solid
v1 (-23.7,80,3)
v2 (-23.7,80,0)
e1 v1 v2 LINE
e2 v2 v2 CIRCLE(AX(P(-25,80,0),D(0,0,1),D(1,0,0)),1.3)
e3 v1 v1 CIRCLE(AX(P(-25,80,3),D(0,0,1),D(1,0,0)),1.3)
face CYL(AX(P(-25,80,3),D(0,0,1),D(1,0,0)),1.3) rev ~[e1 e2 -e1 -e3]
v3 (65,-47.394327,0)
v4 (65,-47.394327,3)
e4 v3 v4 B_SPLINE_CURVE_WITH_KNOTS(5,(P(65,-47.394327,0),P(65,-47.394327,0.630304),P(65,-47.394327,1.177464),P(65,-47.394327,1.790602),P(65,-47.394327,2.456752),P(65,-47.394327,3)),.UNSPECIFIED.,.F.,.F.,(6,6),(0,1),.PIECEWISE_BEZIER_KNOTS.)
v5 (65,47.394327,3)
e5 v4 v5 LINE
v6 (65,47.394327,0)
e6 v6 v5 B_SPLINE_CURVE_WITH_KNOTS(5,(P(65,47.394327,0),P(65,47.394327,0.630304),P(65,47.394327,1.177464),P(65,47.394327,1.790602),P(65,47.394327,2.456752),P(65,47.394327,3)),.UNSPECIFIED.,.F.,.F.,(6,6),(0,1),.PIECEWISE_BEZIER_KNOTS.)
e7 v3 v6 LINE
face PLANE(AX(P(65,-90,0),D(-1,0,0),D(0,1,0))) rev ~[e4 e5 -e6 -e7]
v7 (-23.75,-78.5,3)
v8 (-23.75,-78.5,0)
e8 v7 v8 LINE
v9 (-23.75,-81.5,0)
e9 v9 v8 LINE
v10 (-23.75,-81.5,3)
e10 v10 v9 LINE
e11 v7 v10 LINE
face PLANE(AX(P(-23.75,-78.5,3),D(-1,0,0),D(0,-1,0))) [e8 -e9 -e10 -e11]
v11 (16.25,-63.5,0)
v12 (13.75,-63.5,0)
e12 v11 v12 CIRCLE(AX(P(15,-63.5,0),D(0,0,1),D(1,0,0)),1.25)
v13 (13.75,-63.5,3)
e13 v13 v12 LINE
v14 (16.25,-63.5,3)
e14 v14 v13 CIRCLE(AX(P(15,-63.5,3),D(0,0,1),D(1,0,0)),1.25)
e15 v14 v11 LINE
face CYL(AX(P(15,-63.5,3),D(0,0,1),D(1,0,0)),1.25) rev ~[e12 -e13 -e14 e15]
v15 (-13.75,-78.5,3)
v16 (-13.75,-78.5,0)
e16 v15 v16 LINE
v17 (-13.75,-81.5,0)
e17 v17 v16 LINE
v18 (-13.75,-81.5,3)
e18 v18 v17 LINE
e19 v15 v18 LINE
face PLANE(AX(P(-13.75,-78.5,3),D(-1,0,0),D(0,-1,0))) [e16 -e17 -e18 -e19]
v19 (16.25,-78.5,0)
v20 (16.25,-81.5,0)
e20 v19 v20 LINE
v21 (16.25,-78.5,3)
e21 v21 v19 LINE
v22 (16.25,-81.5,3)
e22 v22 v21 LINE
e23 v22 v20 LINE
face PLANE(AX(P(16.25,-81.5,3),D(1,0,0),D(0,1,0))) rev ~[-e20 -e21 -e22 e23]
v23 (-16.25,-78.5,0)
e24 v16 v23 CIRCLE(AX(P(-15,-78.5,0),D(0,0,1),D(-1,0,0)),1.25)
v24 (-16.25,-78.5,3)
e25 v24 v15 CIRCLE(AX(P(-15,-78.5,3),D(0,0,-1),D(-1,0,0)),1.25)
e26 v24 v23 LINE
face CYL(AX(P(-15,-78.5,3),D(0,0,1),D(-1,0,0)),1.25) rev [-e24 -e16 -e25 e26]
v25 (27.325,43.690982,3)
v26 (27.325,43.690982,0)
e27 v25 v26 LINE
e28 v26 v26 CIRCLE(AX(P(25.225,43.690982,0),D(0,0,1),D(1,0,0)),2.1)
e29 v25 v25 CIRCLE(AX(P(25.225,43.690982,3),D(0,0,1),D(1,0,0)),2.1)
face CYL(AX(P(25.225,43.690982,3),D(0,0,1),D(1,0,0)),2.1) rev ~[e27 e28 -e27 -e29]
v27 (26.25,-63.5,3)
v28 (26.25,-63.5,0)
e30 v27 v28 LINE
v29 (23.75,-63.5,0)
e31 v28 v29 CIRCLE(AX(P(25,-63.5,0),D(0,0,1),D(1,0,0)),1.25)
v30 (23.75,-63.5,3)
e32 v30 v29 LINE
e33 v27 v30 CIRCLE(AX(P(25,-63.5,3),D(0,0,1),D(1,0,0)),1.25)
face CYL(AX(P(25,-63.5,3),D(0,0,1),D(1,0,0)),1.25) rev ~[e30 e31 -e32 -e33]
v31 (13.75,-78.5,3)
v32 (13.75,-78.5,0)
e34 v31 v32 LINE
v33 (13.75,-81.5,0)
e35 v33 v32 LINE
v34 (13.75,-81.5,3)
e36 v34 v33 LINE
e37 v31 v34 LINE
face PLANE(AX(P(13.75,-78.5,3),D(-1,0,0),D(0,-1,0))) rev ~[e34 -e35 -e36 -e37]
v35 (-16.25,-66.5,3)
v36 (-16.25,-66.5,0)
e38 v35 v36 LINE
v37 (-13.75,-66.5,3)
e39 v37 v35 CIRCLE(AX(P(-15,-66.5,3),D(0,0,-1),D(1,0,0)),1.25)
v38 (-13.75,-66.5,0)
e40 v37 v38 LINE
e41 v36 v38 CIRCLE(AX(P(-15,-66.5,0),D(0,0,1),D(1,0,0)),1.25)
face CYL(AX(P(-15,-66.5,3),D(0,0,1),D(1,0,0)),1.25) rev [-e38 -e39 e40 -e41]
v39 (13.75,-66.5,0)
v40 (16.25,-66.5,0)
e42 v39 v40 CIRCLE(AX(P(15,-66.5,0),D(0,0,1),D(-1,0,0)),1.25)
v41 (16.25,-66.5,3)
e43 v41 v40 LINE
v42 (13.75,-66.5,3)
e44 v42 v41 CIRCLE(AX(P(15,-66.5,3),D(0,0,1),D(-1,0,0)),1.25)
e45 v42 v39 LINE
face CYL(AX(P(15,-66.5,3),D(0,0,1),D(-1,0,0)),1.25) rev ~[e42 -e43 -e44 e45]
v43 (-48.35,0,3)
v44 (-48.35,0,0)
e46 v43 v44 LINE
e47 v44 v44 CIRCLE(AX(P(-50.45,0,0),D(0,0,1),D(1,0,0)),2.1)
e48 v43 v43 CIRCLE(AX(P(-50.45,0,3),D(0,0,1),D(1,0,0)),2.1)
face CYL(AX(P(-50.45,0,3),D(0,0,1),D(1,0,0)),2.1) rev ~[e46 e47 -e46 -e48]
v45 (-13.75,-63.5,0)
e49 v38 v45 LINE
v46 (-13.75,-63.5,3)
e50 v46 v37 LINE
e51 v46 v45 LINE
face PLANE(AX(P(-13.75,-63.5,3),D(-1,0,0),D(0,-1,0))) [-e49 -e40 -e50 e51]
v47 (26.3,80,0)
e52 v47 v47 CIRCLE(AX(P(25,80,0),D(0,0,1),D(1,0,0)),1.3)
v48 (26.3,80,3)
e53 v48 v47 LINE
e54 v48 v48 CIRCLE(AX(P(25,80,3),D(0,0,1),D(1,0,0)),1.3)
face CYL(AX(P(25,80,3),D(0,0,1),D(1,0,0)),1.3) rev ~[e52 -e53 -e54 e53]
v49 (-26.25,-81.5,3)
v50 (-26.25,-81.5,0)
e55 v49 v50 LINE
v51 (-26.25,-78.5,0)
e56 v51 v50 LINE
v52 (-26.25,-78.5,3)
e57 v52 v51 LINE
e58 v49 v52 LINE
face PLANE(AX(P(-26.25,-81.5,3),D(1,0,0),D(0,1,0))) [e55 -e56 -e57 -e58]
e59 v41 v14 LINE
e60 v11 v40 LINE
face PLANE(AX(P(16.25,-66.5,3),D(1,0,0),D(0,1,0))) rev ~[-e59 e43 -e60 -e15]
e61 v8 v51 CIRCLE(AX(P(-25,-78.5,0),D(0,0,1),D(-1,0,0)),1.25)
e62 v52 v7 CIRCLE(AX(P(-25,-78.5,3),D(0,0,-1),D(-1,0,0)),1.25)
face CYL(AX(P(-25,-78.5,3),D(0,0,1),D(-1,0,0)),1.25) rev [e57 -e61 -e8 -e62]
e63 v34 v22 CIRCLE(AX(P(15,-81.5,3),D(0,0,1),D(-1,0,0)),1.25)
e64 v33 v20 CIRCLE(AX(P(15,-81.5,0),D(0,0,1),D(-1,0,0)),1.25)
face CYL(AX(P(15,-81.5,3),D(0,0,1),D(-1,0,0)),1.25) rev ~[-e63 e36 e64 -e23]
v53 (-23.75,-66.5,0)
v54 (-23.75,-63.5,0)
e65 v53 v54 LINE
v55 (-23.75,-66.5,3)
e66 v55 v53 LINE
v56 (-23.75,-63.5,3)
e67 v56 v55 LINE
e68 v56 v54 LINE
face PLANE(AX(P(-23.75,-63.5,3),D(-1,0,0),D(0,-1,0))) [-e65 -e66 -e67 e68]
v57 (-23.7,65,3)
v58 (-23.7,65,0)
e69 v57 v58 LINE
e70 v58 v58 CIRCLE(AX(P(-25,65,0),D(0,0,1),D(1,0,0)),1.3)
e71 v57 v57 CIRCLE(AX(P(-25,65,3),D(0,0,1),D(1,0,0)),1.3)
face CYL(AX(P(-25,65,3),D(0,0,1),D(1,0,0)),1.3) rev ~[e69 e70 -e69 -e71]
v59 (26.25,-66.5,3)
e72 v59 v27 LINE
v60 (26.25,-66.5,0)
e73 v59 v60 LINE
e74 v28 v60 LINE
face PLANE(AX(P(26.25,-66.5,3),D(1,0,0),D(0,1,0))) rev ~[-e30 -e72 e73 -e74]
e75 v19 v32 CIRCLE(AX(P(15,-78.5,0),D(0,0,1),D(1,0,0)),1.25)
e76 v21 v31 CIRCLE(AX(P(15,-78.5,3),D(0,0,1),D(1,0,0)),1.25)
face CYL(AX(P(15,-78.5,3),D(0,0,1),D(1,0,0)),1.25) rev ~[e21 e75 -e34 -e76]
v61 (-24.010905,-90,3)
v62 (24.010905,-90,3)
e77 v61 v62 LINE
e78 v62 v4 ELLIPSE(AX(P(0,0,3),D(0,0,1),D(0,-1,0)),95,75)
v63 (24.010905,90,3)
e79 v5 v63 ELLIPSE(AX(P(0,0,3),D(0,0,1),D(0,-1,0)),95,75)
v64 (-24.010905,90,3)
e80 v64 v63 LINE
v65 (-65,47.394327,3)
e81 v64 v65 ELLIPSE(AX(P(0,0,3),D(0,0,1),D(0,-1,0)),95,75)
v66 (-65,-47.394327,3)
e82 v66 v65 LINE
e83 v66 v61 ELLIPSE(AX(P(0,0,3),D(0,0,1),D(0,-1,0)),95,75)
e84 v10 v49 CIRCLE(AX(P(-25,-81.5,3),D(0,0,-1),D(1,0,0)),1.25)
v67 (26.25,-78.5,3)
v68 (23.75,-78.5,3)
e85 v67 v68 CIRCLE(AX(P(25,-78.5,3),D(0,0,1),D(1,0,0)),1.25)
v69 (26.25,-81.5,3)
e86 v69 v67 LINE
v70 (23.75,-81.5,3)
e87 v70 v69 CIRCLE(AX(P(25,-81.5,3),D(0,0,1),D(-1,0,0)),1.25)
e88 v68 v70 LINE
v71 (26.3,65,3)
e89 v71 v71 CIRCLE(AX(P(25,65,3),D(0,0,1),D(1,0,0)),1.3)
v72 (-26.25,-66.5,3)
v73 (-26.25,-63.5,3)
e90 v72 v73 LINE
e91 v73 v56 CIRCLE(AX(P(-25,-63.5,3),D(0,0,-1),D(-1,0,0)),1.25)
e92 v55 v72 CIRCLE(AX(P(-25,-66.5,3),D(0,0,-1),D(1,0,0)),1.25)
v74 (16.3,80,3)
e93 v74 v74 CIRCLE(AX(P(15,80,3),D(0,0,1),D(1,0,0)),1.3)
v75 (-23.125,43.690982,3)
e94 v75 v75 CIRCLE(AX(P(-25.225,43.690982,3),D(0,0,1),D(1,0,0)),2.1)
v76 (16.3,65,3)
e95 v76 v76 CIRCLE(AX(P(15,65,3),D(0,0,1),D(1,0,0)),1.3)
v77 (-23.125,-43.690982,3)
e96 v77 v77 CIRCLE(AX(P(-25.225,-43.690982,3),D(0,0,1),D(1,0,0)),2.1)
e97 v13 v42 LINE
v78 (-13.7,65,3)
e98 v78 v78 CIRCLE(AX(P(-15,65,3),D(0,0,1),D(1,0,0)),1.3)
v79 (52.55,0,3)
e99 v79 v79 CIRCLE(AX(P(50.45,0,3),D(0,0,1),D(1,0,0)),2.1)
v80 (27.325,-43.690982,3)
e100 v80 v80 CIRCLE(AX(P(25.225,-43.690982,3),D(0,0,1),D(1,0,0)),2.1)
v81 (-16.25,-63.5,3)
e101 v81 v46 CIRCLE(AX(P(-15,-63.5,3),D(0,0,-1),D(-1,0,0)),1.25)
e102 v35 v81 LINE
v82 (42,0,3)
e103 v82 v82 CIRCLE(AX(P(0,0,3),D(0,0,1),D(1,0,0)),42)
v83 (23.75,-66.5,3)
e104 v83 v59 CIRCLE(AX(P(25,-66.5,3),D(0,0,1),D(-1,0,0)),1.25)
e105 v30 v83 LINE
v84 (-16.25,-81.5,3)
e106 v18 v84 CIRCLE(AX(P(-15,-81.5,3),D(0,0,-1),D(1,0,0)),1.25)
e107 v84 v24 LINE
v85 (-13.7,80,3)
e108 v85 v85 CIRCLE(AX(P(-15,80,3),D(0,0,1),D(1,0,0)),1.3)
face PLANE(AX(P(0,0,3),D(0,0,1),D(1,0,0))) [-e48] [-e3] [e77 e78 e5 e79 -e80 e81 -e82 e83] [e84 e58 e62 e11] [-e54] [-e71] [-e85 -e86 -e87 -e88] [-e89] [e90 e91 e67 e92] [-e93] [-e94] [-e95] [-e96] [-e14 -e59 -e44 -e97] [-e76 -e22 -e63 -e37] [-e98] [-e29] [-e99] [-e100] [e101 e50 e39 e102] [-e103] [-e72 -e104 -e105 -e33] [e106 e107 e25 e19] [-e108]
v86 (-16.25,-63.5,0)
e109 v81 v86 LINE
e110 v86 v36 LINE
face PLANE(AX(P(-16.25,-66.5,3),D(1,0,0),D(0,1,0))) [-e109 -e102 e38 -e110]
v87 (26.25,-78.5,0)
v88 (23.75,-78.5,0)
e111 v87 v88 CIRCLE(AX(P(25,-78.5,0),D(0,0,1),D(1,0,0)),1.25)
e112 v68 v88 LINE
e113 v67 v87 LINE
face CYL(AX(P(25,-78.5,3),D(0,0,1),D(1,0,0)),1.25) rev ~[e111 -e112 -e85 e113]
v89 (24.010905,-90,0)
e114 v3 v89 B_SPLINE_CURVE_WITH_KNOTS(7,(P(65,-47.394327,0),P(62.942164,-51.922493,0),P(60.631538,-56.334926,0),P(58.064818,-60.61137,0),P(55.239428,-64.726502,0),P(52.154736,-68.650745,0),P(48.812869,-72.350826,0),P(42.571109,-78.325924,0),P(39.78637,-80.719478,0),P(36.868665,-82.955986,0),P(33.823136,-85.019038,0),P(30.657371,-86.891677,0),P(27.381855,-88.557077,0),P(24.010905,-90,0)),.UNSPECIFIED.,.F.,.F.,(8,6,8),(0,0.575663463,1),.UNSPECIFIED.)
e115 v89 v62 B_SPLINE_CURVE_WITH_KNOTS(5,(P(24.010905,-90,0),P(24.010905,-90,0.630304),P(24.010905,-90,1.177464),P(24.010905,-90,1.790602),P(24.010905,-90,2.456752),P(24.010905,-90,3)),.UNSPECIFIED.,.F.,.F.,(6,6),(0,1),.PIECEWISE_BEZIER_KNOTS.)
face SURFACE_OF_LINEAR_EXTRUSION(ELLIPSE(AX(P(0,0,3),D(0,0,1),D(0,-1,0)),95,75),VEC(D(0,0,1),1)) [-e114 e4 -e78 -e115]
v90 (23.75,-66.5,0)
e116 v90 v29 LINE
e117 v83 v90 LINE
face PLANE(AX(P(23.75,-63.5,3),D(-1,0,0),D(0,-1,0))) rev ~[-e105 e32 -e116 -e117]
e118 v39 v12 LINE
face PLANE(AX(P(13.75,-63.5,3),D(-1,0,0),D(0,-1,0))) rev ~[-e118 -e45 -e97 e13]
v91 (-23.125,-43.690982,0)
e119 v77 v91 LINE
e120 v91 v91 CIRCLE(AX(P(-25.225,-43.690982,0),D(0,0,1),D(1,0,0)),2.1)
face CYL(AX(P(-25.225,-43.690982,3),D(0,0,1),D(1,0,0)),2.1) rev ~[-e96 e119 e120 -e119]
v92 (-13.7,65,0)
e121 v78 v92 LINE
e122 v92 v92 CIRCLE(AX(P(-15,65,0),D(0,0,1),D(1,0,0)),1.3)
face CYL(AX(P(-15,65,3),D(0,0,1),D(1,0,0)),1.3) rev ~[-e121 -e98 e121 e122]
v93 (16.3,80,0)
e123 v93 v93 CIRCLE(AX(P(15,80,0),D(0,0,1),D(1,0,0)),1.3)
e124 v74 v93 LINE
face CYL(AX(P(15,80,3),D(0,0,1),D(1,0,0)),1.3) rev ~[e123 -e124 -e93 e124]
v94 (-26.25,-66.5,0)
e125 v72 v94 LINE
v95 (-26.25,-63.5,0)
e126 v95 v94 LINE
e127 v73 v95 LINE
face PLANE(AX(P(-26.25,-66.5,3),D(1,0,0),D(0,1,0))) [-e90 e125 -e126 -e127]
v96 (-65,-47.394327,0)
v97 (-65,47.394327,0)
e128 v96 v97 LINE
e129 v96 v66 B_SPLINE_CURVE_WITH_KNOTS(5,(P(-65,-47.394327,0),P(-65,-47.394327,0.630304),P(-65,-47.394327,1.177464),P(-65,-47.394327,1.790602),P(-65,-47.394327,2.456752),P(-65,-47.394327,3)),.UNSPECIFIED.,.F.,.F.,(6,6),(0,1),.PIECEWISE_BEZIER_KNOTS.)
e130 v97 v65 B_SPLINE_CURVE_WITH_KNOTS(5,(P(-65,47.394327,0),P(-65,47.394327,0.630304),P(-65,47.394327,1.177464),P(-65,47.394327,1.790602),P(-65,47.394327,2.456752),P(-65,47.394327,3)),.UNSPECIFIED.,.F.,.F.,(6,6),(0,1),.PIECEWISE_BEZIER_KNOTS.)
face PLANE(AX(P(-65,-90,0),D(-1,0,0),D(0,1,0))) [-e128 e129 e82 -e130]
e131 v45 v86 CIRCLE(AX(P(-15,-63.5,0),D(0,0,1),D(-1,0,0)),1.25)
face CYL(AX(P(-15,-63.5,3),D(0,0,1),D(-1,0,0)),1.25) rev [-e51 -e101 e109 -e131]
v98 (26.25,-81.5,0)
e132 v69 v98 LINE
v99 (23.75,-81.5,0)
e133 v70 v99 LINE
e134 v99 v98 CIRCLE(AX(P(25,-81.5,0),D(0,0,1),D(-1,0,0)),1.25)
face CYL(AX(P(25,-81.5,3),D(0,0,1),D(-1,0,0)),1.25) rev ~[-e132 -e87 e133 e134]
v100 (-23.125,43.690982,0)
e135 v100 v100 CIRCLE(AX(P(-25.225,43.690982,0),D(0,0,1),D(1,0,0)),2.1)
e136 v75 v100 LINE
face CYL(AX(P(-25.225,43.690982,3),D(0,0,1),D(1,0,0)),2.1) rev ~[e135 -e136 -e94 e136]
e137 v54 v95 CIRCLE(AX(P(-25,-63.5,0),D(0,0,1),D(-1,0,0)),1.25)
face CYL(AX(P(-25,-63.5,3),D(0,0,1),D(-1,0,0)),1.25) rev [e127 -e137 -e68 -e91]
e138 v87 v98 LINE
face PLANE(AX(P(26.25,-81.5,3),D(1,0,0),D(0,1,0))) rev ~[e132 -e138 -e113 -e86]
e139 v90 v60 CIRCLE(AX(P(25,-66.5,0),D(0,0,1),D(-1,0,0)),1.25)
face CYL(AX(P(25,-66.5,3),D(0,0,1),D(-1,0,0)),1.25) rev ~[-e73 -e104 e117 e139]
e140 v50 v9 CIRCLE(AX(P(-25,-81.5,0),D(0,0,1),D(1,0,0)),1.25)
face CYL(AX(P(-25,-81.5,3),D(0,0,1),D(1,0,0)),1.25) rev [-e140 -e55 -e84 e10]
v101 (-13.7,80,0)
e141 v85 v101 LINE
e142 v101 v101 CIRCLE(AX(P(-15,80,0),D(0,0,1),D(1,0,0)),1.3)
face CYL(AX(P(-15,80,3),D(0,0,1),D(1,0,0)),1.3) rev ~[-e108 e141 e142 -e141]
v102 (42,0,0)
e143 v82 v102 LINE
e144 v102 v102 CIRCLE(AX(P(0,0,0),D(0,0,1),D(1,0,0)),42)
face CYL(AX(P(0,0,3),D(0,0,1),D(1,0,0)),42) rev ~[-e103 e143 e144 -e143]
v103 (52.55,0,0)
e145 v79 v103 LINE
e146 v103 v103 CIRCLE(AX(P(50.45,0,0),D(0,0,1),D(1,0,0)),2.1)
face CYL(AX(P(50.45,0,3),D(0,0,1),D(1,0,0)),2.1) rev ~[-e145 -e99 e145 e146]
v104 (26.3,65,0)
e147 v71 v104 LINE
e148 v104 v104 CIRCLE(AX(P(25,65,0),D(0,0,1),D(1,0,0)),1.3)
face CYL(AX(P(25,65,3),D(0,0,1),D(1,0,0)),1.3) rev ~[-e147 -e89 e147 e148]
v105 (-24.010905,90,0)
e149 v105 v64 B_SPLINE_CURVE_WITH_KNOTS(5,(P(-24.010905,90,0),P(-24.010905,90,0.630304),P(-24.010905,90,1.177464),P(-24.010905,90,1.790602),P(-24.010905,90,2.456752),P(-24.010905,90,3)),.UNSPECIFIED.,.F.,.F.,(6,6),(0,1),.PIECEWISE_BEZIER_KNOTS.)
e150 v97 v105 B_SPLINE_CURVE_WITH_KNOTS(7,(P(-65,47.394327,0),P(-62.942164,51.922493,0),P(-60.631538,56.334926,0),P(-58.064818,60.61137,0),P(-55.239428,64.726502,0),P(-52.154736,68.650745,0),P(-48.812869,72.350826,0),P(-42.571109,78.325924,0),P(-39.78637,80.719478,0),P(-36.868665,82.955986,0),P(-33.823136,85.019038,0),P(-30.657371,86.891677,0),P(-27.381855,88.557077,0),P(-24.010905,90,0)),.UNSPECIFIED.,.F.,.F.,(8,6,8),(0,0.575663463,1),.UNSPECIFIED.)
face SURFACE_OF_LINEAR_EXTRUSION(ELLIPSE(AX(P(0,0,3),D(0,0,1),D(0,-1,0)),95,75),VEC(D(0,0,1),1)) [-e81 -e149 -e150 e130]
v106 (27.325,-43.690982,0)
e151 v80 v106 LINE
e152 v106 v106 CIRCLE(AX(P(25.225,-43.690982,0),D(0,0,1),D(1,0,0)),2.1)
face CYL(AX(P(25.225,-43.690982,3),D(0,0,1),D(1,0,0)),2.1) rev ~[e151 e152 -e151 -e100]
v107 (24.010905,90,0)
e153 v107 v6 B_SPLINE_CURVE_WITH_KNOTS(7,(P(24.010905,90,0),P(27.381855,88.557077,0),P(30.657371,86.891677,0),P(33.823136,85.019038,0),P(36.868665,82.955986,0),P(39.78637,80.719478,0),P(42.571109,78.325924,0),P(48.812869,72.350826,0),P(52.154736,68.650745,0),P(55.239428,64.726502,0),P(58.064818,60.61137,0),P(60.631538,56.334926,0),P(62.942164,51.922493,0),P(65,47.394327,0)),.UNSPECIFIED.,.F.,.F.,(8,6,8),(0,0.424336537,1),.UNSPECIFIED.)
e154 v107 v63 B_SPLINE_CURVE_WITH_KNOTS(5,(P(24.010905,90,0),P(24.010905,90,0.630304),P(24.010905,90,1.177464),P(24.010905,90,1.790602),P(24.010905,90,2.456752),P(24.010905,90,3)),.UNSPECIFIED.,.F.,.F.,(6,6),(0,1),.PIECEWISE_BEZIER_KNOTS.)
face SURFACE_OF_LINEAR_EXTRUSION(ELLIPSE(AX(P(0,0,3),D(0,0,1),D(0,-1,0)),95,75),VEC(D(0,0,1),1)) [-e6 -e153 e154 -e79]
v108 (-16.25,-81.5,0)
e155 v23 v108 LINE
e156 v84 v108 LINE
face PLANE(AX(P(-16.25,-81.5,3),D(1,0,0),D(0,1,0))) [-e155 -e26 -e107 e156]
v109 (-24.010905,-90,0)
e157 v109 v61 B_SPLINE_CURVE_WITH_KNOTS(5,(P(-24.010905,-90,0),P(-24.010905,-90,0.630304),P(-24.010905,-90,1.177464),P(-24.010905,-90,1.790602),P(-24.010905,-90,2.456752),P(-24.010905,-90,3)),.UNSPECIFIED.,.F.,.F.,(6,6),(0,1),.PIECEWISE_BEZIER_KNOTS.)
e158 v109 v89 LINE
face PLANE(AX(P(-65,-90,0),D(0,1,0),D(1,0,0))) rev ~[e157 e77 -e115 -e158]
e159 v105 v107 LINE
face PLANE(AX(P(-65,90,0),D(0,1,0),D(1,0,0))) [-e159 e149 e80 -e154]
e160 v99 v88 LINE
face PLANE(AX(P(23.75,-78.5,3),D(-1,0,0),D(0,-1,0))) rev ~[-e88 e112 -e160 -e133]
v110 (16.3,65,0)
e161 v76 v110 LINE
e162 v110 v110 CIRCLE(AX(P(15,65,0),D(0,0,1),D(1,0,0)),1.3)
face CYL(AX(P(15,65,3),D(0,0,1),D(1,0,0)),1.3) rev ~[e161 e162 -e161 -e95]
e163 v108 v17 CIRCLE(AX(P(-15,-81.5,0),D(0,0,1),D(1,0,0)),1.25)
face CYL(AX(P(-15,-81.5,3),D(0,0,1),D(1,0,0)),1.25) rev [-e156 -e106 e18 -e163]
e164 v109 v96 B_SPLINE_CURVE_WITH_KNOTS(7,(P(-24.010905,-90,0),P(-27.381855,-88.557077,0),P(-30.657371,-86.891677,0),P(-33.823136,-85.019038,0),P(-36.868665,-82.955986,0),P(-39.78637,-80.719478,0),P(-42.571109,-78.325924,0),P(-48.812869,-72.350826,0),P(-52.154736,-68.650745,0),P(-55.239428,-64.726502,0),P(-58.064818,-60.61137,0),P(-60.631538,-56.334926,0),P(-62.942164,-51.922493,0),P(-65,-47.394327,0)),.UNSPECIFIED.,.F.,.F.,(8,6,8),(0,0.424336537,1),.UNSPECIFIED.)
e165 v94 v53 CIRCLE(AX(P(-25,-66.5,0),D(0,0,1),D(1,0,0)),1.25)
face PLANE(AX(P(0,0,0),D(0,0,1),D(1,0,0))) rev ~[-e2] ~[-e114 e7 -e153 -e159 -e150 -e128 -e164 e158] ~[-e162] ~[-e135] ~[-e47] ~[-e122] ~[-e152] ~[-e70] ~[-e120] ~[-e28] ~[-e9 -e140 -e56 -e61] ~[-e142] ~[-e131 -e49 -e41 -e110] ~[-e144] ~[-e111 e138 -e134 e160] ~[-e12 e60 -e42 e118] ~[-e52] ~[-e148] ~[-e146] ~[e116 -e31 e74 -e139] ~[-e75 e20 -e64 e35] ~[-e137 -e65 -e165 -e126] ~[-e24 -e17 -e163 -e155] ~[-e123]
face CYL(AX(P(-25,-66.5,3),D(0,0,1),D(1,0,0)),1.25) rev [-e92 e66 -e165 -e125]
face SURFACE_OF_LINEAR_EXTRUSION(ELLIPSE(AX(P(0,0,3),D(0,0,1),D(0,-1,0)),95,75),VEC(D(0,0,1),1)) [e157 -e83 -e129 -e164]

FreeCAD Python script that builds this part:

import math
import FreeCAD as App
import Part
import Sketcher
from FreeCAD import Vector


def add_polygon(sketch, points):
    """Adds a closed chain of lines whose ends are joined by coincident constraints."""
    first, n = sketch.GeometryCount, len(points)
    for a, b in zip(points, points[1:] + points[:1]):
        sketch.addGeometry(Part.LineSegment(App.Vector(*a, 0), App.Vector(*b, 0)), False)
    for i in range(n):
        sketch.addConstraint(Sketcher.Constraint("Coincident", first + i, 2, first + (i + 1) % n, 1))

doc = App.newDocument("Part")
body = doc.addObject("PartDesign::Body", "Body")

# Sketch on XY plane
sketch1 = body.newObject("Sketcher::SketchObject", "Sketch")
sketch1.AttachmentSupport = (doc.getObject("XY_Plane"), [""])
sketch1.MapMode = "FlatFace"
add_polygon(sketch1, [(-65, 90), (-65, -90), (65, -90), (65, 90)])  # lines 0-3
sketch1.addConstraint(Sketcher.Constraint("Vertical", 0))
sketch1.addConstraint(Sketcher.Constraint("Horizontal", 1))
sketch1.addConstraint(Sketcher.Constraint("Vertical", 2))
sketch1.addConstraint(Sketcher.Constraint("Horizontal", 3))
sketch1.addConstraint(Sketcher.Constraint("Symmetric", 0, 2, 2, 2, -1, 1))
sketch1.addConstraint(Sketcher.Constraint("DistanceX", 1, 1, 1, 2, 130.0))
sketch1.addConstraint(Sketcher.Constraint("DistanceY", 0, 2, 0, 1, 180.0))
pad1 = body.newObject("PartDesign::Pad", "Pad")
pad1.Profile = sketch1
pad1.Length = 3

# Sketch on XY plane
sketch2 = body.newObject("Sketcher::SketchObject", "Sketch001")
sketch2.AttachmentSupport = (doc.getObject("XY_Plane"), [""])
sketch2.MapMode = "FlatFace"
sketch2.AttachmentOffset = App.Placement(Vector(0, 0, 3), App.Rotation())
sketch2.addGeometry(Part.Circle(Vector(0, 0, 0), Vector(0, 0, 1), 42), False)
sketch2.addConstraint(Sketcher.Constraint("Coincident", 0, 3, -1, 1))
sketch2.addConstraint(Sketcher.Constraint("Diameter", 0, 84.0))
pocket1 = body.newObject("PartDesign::Pocket", "Pocket")
pocket1.Profile = sketch2
pocket1.Length = 10

# Sketch on XY plane
sketch3 = body.newObject("Sketcher::SketchObject", "Sketch002")
sketch3.AttachmentSupport = (doc.getObject("XY_Plane"), [""])
sketch3.MapMode = "FlatFace"
sketch3.AttachmentOffset = App.Placement(Vector(0, 0, 3), App.Rotation())
sketch3.addGeometry(Part.Circle(Vector(-50.45, 0, 0), Vector(0, 0, 1), 2.1), False)
sketch3.addGeometry(Part.Circle(Vector(-25.225, 43.690982, 0), Vector(0, 0, 1), 2.1), False)
sketch3.addGeometry(Part.Circle(Vector(25.225, 43.690982, 0), Vector(0, 0, 1), 2.1), False)
sketch3.addGeometry(Part.Circle(Vector(50.45, 0, 0), Vector(0, 0, 1), 2.1), False)
sketch3.addGeometry(Part.Circle(Vector(25.225, -43.690982, 0), Vector(0, 0, 1), 2.1), False)
sketch3.addGeometry(Part.Circle(Vector(-25.225, -43.690982, 0), Vector(0, 0, 1), 2.1), False)
sketch3.addConstraint(Sketcher.Constraint("Equal", 0, 1))
sketch3.addConstraint(Sketcher.Constraint("Equal", 1, 2))
sketch3.addConstraint(Sketcher.Constraint("Equal", 2, 3))
sketch3.addConstraint(Sketcher.Constraint("Equal", 3, 4))
sketch3.addConstraint(Sketcher.Constraint("Equal", 4, 5))
sketch3.addConstraint(Sketcher.Constraint("Symmetric", 0, 3, 3, 3, -1, 1))
sketch3.addConstraint(Sketcher.Constraint("Symmetric", 1, 3, 4, 3, -1, 1))
sketch3.addConstraint(Sketcher.Constraint("Symmetric", 2, 3, 5, 3, -1, 1))
sketch3.addConstraint(Sketcher.Constraint("Symmetric", 1, 3, 2, 3, -2))
sketch3.addConstraint(Sketcher.Constraint("PointOnObject", 0, 3, -1))
sketch3.addConstraint(Sketcher.Constraint("Diameter", 0, 4.2))
sketch3.addConstraint(Sketcher.Constraint("DistanceX", 0, 3, 3, 3, 100.9))
sketch3.addConstraint(Sketcher.Constraint("DistanceX", 1, 3, 2, 3, 50.45))
sketch3.addConstraint(Sketcher.Constraint("DistanceY", -1, 1, 1, 3, 43.690982))
pocket2 = body.newObject("PartDesign::Pocket", "Pocket001")
pocket2.Profile = sketch3
pocket2.Length = 10

# Sketch on XY plane
sketch4 = body.newObject("Sketcher::SketchObject", "Sketch003")
sketch4.AttachmentSupport = (doc.getObject("XY_Plane"), [""])
sketch4.MapMode = "FlatFace"
sketch4.AttachmentOffset = App.Placement(Vector(0, 0, 3), App.Rotation())
add_polygon(sketch4, [(-88.206, 113.206), (-88.206, -113.206), (88.206, -113.206), (88.206, 113.206)])  # lines 0-3
sketch4.addGeometry(Part.Ellipse(Vector(0, -95, 0), Vector(75, 0, 0), Vector(0, 0, 0)), False)  # 4
sketch4.addConstraint(Sketcher.Constraint("Block", 4))
sketch4.addConstraint(Sketcher.Constraint("Vertical", 0))
sketch4.addConstraint(Sketcher.Constraint("Horizontal", 1))
sketch4.addConstraint(Sketcher.Constraint("Vertical", 2))
sketch4.addConstraint(Sketcher.Constraint("Horizontal", 3))
sketch4.addConstraint(Sketcher.Constraint("Symmetric", 0, 2, 2, 2, -1, 1))
sketch4.addConstraint(Sketcher.Constraint("DistanceX", 1, 1, 1, 2, 176.412))
sketch4.addConstraint(Sketcher.Constraint("DistanceY", 0, 2, 0, 1, 226.412))
pocket3 = body.newObject("PartDesign::Pocket", "Pocket002")
pocket3.Profile = sketch4
pocket3.Length = 10

# Sketch on XY plane
sketch5 = body.newObject("Sketcher::SketchObject", "Sketch004")
sketch5.AttachmentSupport = (doc.getObject("XY_Plane"), [""])
sketch5.MapMode = "FlatFace"
sketch5.AttachmentOffset = App.Placement(Vector(0, 0, 3), App.Rotation())
sketch5.addGeometry(Part.Circle(Vector(15, 65, 0), Vector(0, 0, 1), 1.3), False)
sketch5.addConstraint(Sketcher.Constraint("Diameter", 0, 2.6))
sketch5.addConstraint(Sketcher.Constraint("DistanceX", -1, 1, 0, 3, 15.0))
sketch5.addConstraint(Sketcher.Constraint("DistanceY", -1, 1, 0, 3, 65.0))
pocket4 = body.newObject("PartDesign::Pocket", "Pocket003")
pocket4.Profile = sketch5
pocket4.Type = "UpToFirst"

# Sketch on XY plane
sketch6 = body.newObject("Sketcher::SketchObject", "Sketch005")
sketch6.AttachmentSupport = (doc.getObject("XY_Plane"), [""])
sketch6.MapMode = "FlatFace"
sketch6.AttachmentOffset = App.Placement(Vector(0, 0, 3), App.Rotation())
sketch6.addGeometry(Part.Circle(Vector(25, 65, 0), Vector(0, 0, 1), 1.3), False)
sketch6.addConstraint(Sketcher.Constraint("Diameter", 0, 2.6))
sketch6.addConstraint(Sketcher.Constraint("DistanceX", -1, 1, 0, 3, 25.0))
sketch6.addConstraint(Sketcher.Constraint("DistanceY", -1, 1, 0, 3, 65.0))
pocket5 = body.newObject("PartDesign::Pocket", "Pocket004")
pocket5.Profile = sketch6
pocket5.Type = "UpToFirst"

# Sketch on XY plane
sketch7 = body.newObject("Sketcher::SketchObject", "Sketch006")
sketch7.AttachmentSupport = (doc.getObject("XY_Plane"), [""])
sketch7.MapMode = "FlatFace"
sketch7.AttachmentOffset = App.Placement(Vector(0, 0, 3), App.Rotation())
sketch7.addGeometry(Part.Circle(Vector(25, 80, 0), Vector(0, 0, 1), 1.3), False)
sketch7.addConstraint(Sketcher.Constraint("Diameter", 0, 2.6))
sketch7.addConstraint(Sketcher.Constraint("DistanceX", -1, 1, 0, 3, 25.0))
sketch7.addConstraint(Sketcher.Constraint("DistanceY", -1, 1, 0, 3, 80.0))
pocket6 = body.newObject("PartDesign::Pocket", "Pocket005")
pocket6.Profile = sketch7
pocket6.Type = "UpToFirst"

# Sketch on XY plane
sketch8 = body.newObject("Sketcher::SketchObject", "Sketch007")
sketch8.AttachmentSupport = (doc.getObject("XY_Plane"), [""])
sketch8.MapMode = "FlatFace"
sketch8.AttachmentOffset = App.Placement(Vector(0, 0, 3), App.Rotation())
sketch8.addGeometry(Part.Circle(Vector(15, 80, 0), Vector(0, 0, 1), 1.3), False)
sketch8.addConstraint(Sketcher.Constraint("Diameter", 0, 2.6))
sketch8.addConstraint(Sketcher.Constraint("DistanceX", -1, 1, 0, 3, 15.0))
sketch8.addConstraint(Sketcher.Constraint("DistanceY", -1, 1, 0, 3, 80.0))
pocket7 = body.newObject("PartDesign::Pocket", "Pocket006")
pocket7.Profile = sketch8
pocket7.Type = "UpToFirst"

# Sketch on XY plane
sketch9 = body.newObject("Sketcher::SketchObject", "Sketch008")
sketch9.AttachmentSupport = (doc.getObject("XY_Plane"), [""])
sketch9.MapMode = "FlatFace"
sketch9.AttachmentOffset = App.Placement(Vector(0, 0, 3), App.Rotation())
sketch9.addGeometry(Part.Circle(Vector(-25, 80, 0), Vector(0, 0, 1), 1.3), False)
sketch9.addConstraint(Sketcher.Constraint("Diameter", 0, 2.6))
sketch9.addConstraint(Sketcher.Constraint("DistanceX", 0, 3, -1, 1, 25.0))
sketch9.addConstraint(Sketcher.Constraint("DistanceY", -1, 1, 0, 3, 80.0))
pocket8 = body.newObject("PartDesign::Pocket", "Pocket007")
pocket8.Profile = sketch9
pocket8.Type = "UpToFirst"

# Sketch on XY plane
sketch10 = body.newObject("Sketcher::SketchObject", "Sketch009")
sketch10.AttachmentSupport = (doc.getObject("XY_Plane"), [""])
sketch10.MapMode = "FlatFace"
sketch10.AttachmentOffset = App.Placement(Vector(0, 0, 3), App.Rotation())
sketch10.addGeometry(Part.Circle(Vector(-15, 80, 0), Vector(0, 0, 1), 1.3), False)
sketch10.addConstraint(Sketcher.Constraint("Diameter", 0, 2.6))
sketch10.addConstraint(Sketcher.Constraint("DistanceX", 0, 3, -1, 1, 15.0))
sketch10.addConstraint(Sketcher.Constraint("DistanceY", -1, 1, 0, 3, 80.0))
pocket9 = body.newObject("PartDesign::Pocket", "Pocket008")
pocket9.Profile = sketch10
pocket9.Type = "UpToFirst"

# Sketch on XY plane
sketch11 = body.newObject("Sketcher::SketchObject", "Sketch010")
sketch11.AttachmentSupport = (doc.getObject("XY_Plane"), [""])
sketch11.MapMode = "FlatFace"
sketch11.AttachmentOffset = App.Placement(Vector(0, 0, 3), App.Rotation())
sketch11.addGeometry(Part.Circle(Vector(-15, 65, 0), Vector(0, 0, 1), 1.3), False)
sketch11.addConstraint(Sketcher.Constraint("Diameter", 0, 2.6))
sketch11.addConstraint(Sketcher.Constraint("DistanceX", 0, 3, -1, 1, 15.0))
sketch11.addConstraint(Sketcher.Constraint("DistanceY", -1, 1, 0, 3, 65.0))
pocket10 = body.newObject("PartDesign::Pocket", "Pocket009")
pocket10.Profile = sketch11
pocket10.Type = "UpToFirst"

# Sketch on XY plane
sketch12 = body.newObject("Sketcher::SketchObject", "Sketch011")
sketch12.AttachmentSupport = (doc.getObject("XY_Plane"), [""])
sketch12.MapMode = "FlatFace"
sketch12.AttachmentOffset = App.Placement(Vector(0, 0, 3), App.Rotation())
sketch12.addGeometry(Part.Circle(Vector(-25, 65, 0), Vector(0, 0, 1), 1.3), False)
sketch12.addConstraint(Sketcher.Constraint("Diameter", 0, 2.6))
sketch12.addConstraint(Sketcher.Constraint("DistanceX", 0, 3, -1, 1, 25.0))
sketch12.addConstraint(Sketcher.Constraint("DistanceY", -1, 1, 0, 3, 65.0))
pocket11 = body.newObject("PartDesign::Pocket", "Pocket010")
pocket11.Profile = sketch12
pocket11.Type = "UpToFirst"

# Sketch on XY plane
sketch13 = body.newObject("Sketcher::SketchObject", "Sketch012")
sketch13.AttachmentSupport = (doc.getObject("XY_Plane"), [""])
sketch13.MapMode = "FlatFace"
sketch13.AttachmentOffset = App.Placement(Vector(0, 0, 3), App.Rotation())
sketch13.addGeometry(Part.LineSegment(Vector(-23.75, -66.5, 0), Vector(-23.75, -63.5, 0)), False)
sketch13.addGeometry(Part.ArcOfCircle(Part.Circle(Vector(-25, -63.5, 0), Vector(0, 0, 1), 1.25), math.radians(0), math.radians(180)), False)
sketch13.addGeometry(Part.LineSegment(Vector(-26.25, -63.5, 0), Vector(-26.25, -66.5, 0)), False)
sketch13.addGeometry(Part.ArcOfCircle(Part.Circle(Vector(-25, -66.5, 0), Vector(0, 0, 1), 1.25), math.radians(180), math.radians(360)), False)
sketch13.addConstraint(Sketcher.Constraint("Tangent", 0, 2, 1, 1))
sketch13.addConstraint(Sketcher.Constraint("Tangent", 1, 2, 2, 1))
sketch13.addConstraint(Sketcher.Constraint("Tangent", 2, 2, 3, 1))
sketch13.addConstraint(Sketcher.Constraint("Tangent", 3, 2, 0, 1))
sketch13.addConstraint(Sketcher.Constraint("Vertical", 0))
sketch13.addConstraint(Sketcher.Constraint("Vertical", 2))
sketch13.addConstraint(Sketcher.Constraint("DistanceY", 0, 1, 0, 2, 3.0))
sketch13.addConstraint(Sketcher.Constraint("Radius", 1, 1.25))
sketch13.addConstraint(Sketcher.Constraint("DistanceX", 1, 3, -1, 1, 25.0))
sketch13.addConstraint(Sketcher.Constraint("DistanceY", 1, 3, -1, 1, 63.5))
pocket12 = body.newObject("PartDesign::Pocket", "Pocket011")
pocket12.Profile = sketch13
pocket12.Type = "UpToFirst"

# Sketch on XY plane
sketch14 = body.newObject("Sketcher::SketchObject", "Sketch013")
sketch14.AttachmentSupport = (doc.getObject("XY_Plane"), [""])
sketch14.MapMode = "FlatFace"
sketch14.AttachmentOffset = App.Placement(Vector(0, 0, 3), App.Rotation())
sketch14.addGeometry(Part.LineSegment(Vector(-13.75, -66.5, 0), Vector(-13.75, -63.5, 0)), False)
sketch14.addGeometry(Part.ArcOfCircle(Part.Circle(Vector(-15, -63.5, 0), Vector(0, 0, 1), 1.25), math.radians(0), math.radians(180)), False)
sketch14.addGeometry(Part.LineSegment(Vector(-16.25, -63.5, 0), Vector(-16.25, -66.5, 0)), False)
sketch14.addGeometry(Part.ArcOfCircle(Part.Circle(Vector(-15, -66.5, 0), Vector(0, 0, 1), 1.25), math.radians(180), math.radians(360)), False)
sketch14.addConstraint(Sketcher.Constraint("Tangent", 0, 2, 1, 1))
sketch14.addConstraint(Sketcher.Constraint("Tangent", 1, 2, 2, 1))
sketch14.addConstraint(Sketcher.Constraint("Tangent", 2, 2, 3, 1))
sketch14.addConstraint(Sketcher.Constraint("Tangent", 3, 2, 0, 1))
sketch14.addConstraint(Sketcher.Constraint("Vertical", 0))
sketch14.addConstraint(Sketcher.Constraint("Vertical", 2))
sketch14.addConstraint(Sketcher.Constraint("DistanceY", 0, 1, 0, 2, 3.0))
sketch14.addConstraint(Sketcher.Constraint("Radius", 1, 1.25))
sketch14.addConstraint(Sketcher.Constraint("DistanceX", 1, 3, -1, 1, 15.0))
sketch14.addConstraint(Sketcher.Constraint("DistanceY", 1, 3, -1, 1, 63.5))
pocket13 = body.newObject("PartDesign::Pocket", "Pocket012")
pocket13.Profile = sketch14
pocket13.Type = "UpToFirst"

# Sketch on XY plane
sketch15 = body.newObject("Sketcher::SketchObject", "Sketch014")
sketch15.AttachmentSupport = (doc.getObject("XY_Plane"), [""])
sketch15.MapMode = "FlatFace"
sketch15.AttachmentOffset = App.Placement(Vector(0, 0, 3), App.Rotation())
sketch15.addGeometry(Part.LineSegment(Vector(-23.75, -81.5, 0), Vector(-23.75, -78.5, 0)), False)
sketch15.addGeometry(Part.ArcOfCircle(Part.Circle(Vector(-25, -78.5, 0), Vector(0, 0, 1), 1.25), math.radians(0), math.radians(180)), False)
sketch15.addGeometry(Part.LineSegment(Vector(-26.25, -78.5, 0), Vector(-26.25, -81.5, 0)), False)
sketch15.addGeometry(Part.ArcOfCircle(Part.Circle(Vector(-25, -81.5, 0), Vector(0, 0, 1), 1.25), math.radians(180), math.radians(360)), False)
sketch15.addConstraint(Sketcher.Constraint("Tangent", 0, 2, 1, 1))
sketch15.addConstraint(Sketcher.Constraint("Tangent", 1, 2, 2, 1))
sketch15.addConstraint(Sketcher.Constraint("Tangent", 2, 2, 3, 1))
sketch15.addConstraint(Sketcher.Constraint("Tangent", 3, 2, 0, 1))
sketch15.addConstraint(Sketcher.Constraint("Vertical", 0))
sketch15.addConstraint(Sketcher.Constraint("Vertical", 2))
sketch15.addConstraint(Sketcher.Constraint("DistanceY", 0, 1, 0, 2, 3.0))
sketch15.addConstraint(Sketcher.Constraint("Radius", 1, 1.25))
sketch15.addConstraint(Sketcher.Constraint("DistanceX", 1, 3, -1, 1, 25.0))
sketch15.addConstraint(Sketcher.Constraint("DistanceY", 1, 3, -1, 1, 78.5))
pocket14 = body.newObject("PartDesign::Pocket", "Pocket013")
pocket14.Profile = sketch15
pocket14.Type = "UpToFirst"

# Sketch on XY plane
sketch16 = body.newObject("Sketcher::SketchObject", "Sketch015")
sketch16.AttachmentSupport = (doc.getObject("XY_Plane"), [""])
sketch16.MapMode = "FlatFace"
sketch16.AttachmentOffset = App.Placement(Vector(0, 0, 3), App.Rotation())
sketch16.addGeometry(Part.LineSegment(Vector(-13.75, -81.5, 0), Vector(-13.75, -78.5, 0)), False)
sketch16.addGeometry(Part.ArcOfCircle(Part.Circle(Vector(-15, -78.5, 0), Vector(0, 0, 1), 1.25), math.radians(0), math.radians(180)), False)
sketch16.addGeometry(Part.LineSegment(Vector(-16.25, -78.5, 0), Vector(-16.25, -81.5, 0)), False)
sketch16.addGeometry(Part.ArcOfCircle(Part.Circle(Vector(-15, -81.5, 0), Vector(0, 0, 1), 1.25), math.radians(180), math.radians(360)), False)
sketch16.addConstraint(Sketcher.Constraint("Tangent", 0, 2, 1, 1))
sketch16.addConstraint(Sketcher.Constraint("Tangent", 1, 2, 2, 1))
sketch16.addConstraint(Sketcher.Constraint("Tangent", 2, 2, 3, 1))
sketch16.addConstraint(Sketcher.Constraint("Tangent", 3, 2, 0, 1))
sketch16.addConstraint(Sketcher.Constraint("Vertical", 0))
sketch16.addConstraint(Sketcher.Constraint("Vertical", 2))
sketch16.addConstraint(Sketcher.Constraint("DistanceY", 0, 1, 0, 2, 3.0))
sketch16.addConstraint(Sketcher.Constraint("Radius", 1, 1.25))
sketch16.addConstraint(Sketcher.Constraint("DistanceX", 1, 3, -1, 1, 15.0))
sketch16.addConstraint(Sketcher.Constraint("DistanceY", 1, 3, -1, 1, 78.5))
pocket15 = body.newObject("PartDesign::Pocket", "Pocket014")
pocket15.Profile = sketch16
pocket15.Type = "UpToFirst"

# Sketch on XY plane
sketch17 = body.newObject("Sketcher::SketchObject", "Sketch016")
sketch17.AttachmentSupport = (doc.getObject("XY_Plane"), [""])
sketch17.MapMode = "FlatFace"
sketch17.AttachmentOffset = App.Placement(Vector(0, 0, 3), App.Rotation())
sketch17.addGeometry(Part.LineSegment(Vector(13.75, -78.5, 0), Vector(13.75, -81.5, 0)), False)
sketch17.addGeometry(Part.ArcOfCircle(Part.Circle(Vector(15, -81.5, 0), Vector(0, 0, 1), 1.25), math.radians(180), math.radians(360)), False)
sketch17.addGeometry(Part.LineSegment(Vector(16.25, -81.5, 0), Vector(16.25, -78.5, 0)), False)
sketch17.addGeometry(Part.ArcOfCircle(Part.Circle(Vector(15, -78.5, 0), Vector(0, 0, 1), 1.25), math.radians(0), math.radians(180)), False)
sketch17.addConstraint(Sketcher.Constraint("Tangent", 0, 2, 1, 1))
sketch17.addConstraint(Sketcher.Constraint("Tangent", 1, 2, 2, 1))
sketch17.addConstraint(Sketcher.Constraint("Tangent", 2, 2, 3, 1))
sketch17.addConstraint(Sketcher.Constraint("Tangent", 3, 2, 0, 1))
sketch17.addConstraint(Sketcher.Constraint("Vertical", 0))
sketch17.addConstraint(Sketcher.Constraint("Vertical", 2))
sketch17.addConstraint(Sketcher.Constraint("DistanceY", 0, 2, 0, 1, 3.0))
sketch17.addConstraint(Sketcher.Constraint("Radius", 1, 1.25))
sketch17.addConstraint(Sketcher.Constraint("DistanceX", -1, 1, 1, 3, 15.0))
sketch17.addConstraint(Sketcher.Constraint("DistanceY", 1, 3, -1, 1, 81.5))
pocket16 = body.newObject("PartDesign::Pocket", "Pocket015")
pocket16.Profile = sketch17
pocket16.Type = "UpToFirst"

# Sketch on XY plane
sketch18 = body.newObject("Sketcher::SketchObject", "Sketch017")
sketch18.AttachmentSupport = (doc.getObject("XY_Plane"), [""])
sketch18.MapMode = "FlatFace"
sketch18.AttachmentOffset = App.Placement(Vector(0, 0, 3), App.Rotation())
sketch18.addGeometry(Part.LineSegment(Vector(23.75, -78.5, 0), Vector(23.75, -81.5, 0)), False)
sketch18.addGeometry(Part.ArcOfCircle(Part.Circle(Vector(25, -81.5, 0), Vector(0, 0, 1), 1.25), math.radians(180), math.radians(360)), False)
sketch18.addGeometry(Part.LineSegment(Vector(26.25, -81.5, 0), Vector(26.25, -78.5, 0)), False)
sketch18.addGeometry(Part.ArcOfCircle(Part.Circle(Vector(25, -78.5, 0), Vector(0, 0, 1), 1.25), math.radians(0), math.radians(180)), False)
sketch18.addConstraint(Sketcher.Constraint("Tangent", 0, 2, 1, 1))
sketch18.addConstraint(Sketcher.Constraint("Tangent", 1, 2, 2, 1))
sketch18.addConstraint(Sketcher.Constraint("Tangent", 2, 2, 3, 1))
sketch18.addConstraint(Sketcher.Constraint("Tangent", 3, 2, 0, 1))
sketch18.addConstraint(Sketcher.Constraint("Vertical", 0))
sketch18.addConstraint(Sketcher.Constraint("Vertical", 2))
sketch18.addConstraint(Sketcher.Constraint("DistanceY", 0, 2, 0, 1, 3.0))
sketch18.addConstraint(Sketcher.Constraint("Radius", 1, 1.25))
sketch18.addConstraint(Sketcher.Constraint("DistanceX", -1, 1, 1, 3, 25.0))
sketch18.addConstraint(Sketcher.Constraint("DistanceY", 1, 3, -1, 1, 81.5))
pocket17 = body.newObject("PartDesign::Pocket", "Pocket016")
pocket17.Profile = sketch18
pocket17.Type = "UpToFirst"

# Sketch on XY plane
sketch19 = body.newObject("Sketcher::SketchObject", "Sketch018")
sketch19.AttachmentSupport = (doc.getObject("XY_Plane"), [""])
sketch19.MapMode = "FlatFace"
sketch19.AttachmentOffset = App.Placement(Vector(0, 0, 3), App.Rotation())
sketch19.addGeometry(Part.LineSegment(Vector(23.75, -63.5, 0), Vector(23.75, -66.5, 0)), False)
sketch19.addGeometry(Part.ArcOfCircle(Part.Circle(Vector(25, -66.5, 0), Vector(0, 0, 1), 1.25), math.radians(180), math.radians(360)), False)
sketch19.addGeometry(Part.LineSegment(Vector(26.25, -66.5, 0), Vector(26.25, -63.5, 0)), False)
sketch19.addGeometry(Part.ArcOfCircle(Part.Circle(Vector(25, -63.5, 0), Vector(0, 0, 1), 1.25), math.radians(0), math.radians(180)), False)
sketch19.addConstraint(Sketcher.Constraint("Tangent", 0, 2, 1, 1))
sketch19.addConstraint(Sketcher.Constraint("Tangent", 1, 2, 2, 1))
sketch19.addConstraint(Sketcher.Constraint("Tangent", 2, 2, 3, 1))
sketch19.addConstraint(Sketcher.Constraint("Tangent", 3, 2, 0, 1))
sketch19.addConstraint(Sketcher.Constraint("Vertical", 0))
sketch19.addConstraint(Sketcher.Constraint("Vertical", 2))
sketch19.addConstraint(Sketcher.Constraint("DistanceY", 0, 2, 0, 1, 3.0))
sketch19.addConstraint(Sketcher.Constraint("Radius", 1, 1.25))
sketch19.addConstraint(Sketcher.Constraint("DistanceX", -1, 1, 1, 3, 25.0))
sketch19.addConstraint(Sketcher.Constraint("DistanceY", 1, 3, -1, 1, 66.5))
pocket18 = body.newObject("PartDesign::Pocket", "Pocket017")
pocket18.Profile = sketch19
pocket18.Type = "UpToFirst"

# Sketch on XY plane
sketch20 = body.newObject("Sketcher::SketchObject", "Sketch019")
sketch20.AttachmentSupport = (doc.getObject("XY_Plane"), [""])
sketch20.MapMode = "FlatFace"
sketch20.AttachmentOffset = App.Placement(Vector(0, 0, 3), App.Rotation())
sketch20.addGeometry(Part.LineSegment(Vector(13.75, -63.5, 0), Vector(13.75, -66.5, 0)), False)
sketch20.addGeometry(Part.ArcOfCircle(Part.Circle(Vector(15, -66.5, 0), Vector(0, 0, 1), 1.25), math.radians(180), math.radians(360)), False)
sketch20.addGeometry(Part.LineSegment(Vector(16.25, -66.5, 0), Vector(16.25, -63.5, 0)), False)
sketch20.addGeometry(Part.ArcOfCircle(Part.Circle(Vector(15, -63.5, 0), Vector(0, 0, 1), 1.25), math.radians(0), math.radians(180)), False)
sketch20.addConstraint(Sketcher.Constraint("Tangent", 0, 2, 1, 1))
sketch20.addConstraint(Sketcher.Constraint("Tangent", 1, 2, 2, 1))
sketch20.addConstraint(Sketcher.Constraint("Tangent", 2, 2, 3, 1))
sketch20.addConstraint(Sketcher.Constraint("Tangent", 3, 2, 0, 1))
sketch20.addConstraint(Sketcher.Constraint("Vertical", 0))
sketch20.addConstraint(Sketcher.Constraint("Vertical", 2))
sketch20.addConstraint(Sketcher.Constraint("DistanceY", 0, 2, 0, 1, 3.0))
sketch20.addConstraint(Sketcher.Constraint("Radius", 1, 1.25))
sketch20.addConstraint(Sketcher.Constraint("DistanceX", -1, 1, 1, 3, 15.0))
sketch20.addConstraint(Sketcher.Constraint("DistanceY", 1, 3, -1, 1, 66.5))
pocket19 = body.newObject("PartDesign::Pocket", "Pocket018")
pocket19.Profile = sketch20
pocket19.Type = "UpToFirst"

doc.recompute()
